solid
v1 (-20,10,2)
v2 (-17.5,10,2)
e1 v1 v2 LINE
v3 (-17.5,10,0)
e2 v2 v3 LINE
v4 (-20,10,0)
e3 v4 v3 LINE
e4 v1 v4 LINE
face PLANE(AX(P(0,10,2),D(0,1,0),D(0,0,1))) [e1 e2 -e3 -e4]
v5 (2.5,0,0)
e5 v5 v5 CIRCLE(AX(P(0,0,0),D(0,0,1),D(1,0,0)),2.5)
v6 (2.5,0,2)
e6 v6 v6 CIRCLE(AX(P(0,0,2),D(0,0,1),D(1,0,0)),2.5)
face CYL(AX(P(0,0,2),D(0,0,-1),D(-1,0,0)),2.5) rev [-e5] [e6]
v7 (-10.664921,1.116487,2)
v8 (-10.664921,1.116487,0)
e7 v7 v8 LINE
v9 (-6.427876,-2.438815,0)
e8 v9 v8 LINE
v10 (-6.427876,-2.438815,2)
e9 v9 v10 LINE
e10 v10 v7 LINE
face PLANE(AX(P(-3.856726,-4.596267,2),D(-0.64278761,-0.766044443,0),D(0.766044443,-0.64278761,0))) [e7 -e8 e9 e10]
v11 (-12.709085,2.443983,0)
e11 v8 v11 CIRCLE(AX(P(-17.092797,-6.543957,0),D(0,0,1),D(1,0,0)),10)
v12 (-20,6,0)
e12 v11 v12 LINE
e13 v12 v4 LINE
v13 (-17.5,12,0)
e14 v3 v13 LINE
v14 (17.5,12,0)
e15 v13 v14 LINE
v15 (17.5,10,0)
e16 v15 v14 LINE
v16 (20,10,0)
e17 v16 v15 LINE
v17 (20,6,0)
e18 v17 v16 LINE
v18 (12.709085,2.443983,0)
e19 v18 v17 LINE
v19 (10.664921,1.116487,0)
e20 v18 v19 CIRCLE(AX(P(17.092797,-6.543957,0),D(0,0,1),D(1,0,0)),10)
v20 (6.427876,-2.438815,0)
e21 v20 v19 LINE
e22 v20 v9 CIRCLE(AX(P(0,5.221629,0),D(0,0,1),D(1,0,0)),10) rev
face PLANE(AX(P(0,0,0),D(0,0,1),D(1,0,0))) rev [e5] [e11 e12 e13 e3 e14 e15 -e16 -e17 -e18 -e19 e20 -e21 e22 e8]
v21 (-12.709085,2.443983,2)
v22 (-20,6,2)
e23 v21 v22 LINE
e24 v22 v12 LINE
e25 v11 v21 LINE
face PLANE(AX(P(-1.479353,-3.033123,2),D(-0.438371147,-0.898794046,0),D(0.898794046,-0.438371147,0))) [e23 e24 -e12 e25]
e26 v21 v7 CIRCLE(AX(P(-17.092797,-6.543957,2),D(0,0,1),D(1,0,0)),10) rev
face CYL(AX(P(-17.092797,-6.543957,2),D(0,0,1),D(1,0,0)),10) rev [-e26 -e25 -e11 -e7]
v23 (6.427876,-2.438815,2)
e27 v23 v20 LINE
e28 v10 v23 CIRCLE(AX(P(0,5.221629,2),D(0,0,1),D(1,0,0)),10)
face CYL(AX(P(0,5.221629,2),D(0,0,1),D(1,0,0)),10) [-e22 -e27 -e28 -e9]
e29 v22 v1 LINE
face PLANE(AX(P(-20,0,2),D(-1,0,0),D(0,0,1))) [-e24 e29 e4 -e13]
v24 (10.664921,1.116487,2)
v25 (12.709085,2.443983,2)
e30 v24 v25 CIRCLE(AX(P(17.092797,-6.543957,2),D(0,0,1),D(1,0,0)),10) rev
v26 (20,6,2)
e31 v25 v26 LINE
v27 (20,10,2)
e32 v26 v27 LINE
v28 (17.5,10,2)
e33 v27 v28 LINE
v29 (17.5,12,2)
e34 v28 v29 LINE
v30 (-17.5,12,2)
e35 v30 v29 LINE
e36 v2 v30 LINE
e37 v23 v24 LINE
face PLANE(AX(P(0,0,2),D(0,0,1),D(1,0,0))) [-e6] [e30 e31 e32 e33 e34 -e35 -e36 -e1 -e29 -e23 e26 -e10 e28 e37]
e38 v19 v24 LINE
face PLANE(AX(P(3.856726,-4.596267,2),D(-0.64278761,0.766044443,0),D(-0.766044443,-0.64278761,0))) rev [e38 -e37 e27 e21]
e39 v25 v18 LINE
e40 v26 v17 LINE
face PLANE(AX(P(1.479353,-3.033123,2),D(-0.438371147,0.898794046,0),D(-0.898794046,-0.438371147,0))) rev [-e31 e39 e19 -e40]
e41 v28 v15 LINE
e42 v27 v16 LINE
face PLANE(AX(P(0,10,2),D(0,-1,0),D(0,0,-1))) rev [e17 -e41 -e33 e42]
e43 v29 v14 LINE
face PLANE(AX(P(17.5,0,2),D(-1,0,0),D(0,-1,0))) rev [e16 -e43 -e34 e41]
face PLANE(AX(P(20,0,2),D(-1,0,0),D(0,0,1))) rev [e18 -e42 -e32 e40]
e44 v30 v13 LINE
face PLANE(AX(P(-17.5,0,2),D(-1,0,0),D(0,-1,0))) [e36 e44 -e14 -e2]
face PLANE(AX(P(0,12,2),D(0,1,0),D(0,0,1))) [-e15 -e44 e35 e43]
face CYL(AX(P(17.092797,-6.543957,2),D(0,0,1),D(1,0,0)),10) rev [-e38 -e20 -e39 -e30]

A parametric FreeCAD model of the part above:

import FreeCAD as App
import Part
import Sketcher

V = App.Vector
Q = App.Units.Quantity


def edges_at(feature, points):
    """Names of the edges that pass closest to the given points."""
    edges = feature.Shape.Edges
    near = lambda p: min(range(len(edges)), key=lambda i: edges[i].distToShape(Part.Vertex(*p))[0])
    return sorted({f"Edge{near(p) + 1}" for p in points})

doc = App.newDocument("Part")
body = doc.addObject("PartDesign::Body", "Body")

# Sketch on XY plane
sketch1 = doc.addObject("Sketcher::SketchObject", "Sketch")
body.addObject(sketch1)
sketch1.AttachmentSupport = (doc.XY_Plane, [""])
sketch1.MapMode = "FlatFace"
sketch1.addGeometry([
    Part.LineSegment(V(0, -7.832444, 0), V(11.605505, 1.905731, 0)),  # 0
    Part.LineSegment(V(11.605505, 1.905731, 0), V(20, 6, 0)),  # 1
    Part.LineSegment(V(20, 6, 0), V(20, 10, 0)),  # 2
    Part.LineSegment(V(20, 10, 0), V(17.5, 10, 0)),  # 3
    Part.LineSegment(V(17.5, 10, 0), V(17.5, 12, 0)),  # 4
    Part.LineSegment(V(17.5, 12, 0), V(-17.5, 12, 0)),  # 5
    Part.LineSegment(V(-17.5, 12, 0), V(-17.5, 10, 0)),  # 6
    Part.LineSegment(V(-17.5, 10, 0), V(-20, 10, 0)),  # 7
    Part.LineSegment(V(-20, 10, 0), V(-20, 6, 0)),  # 8
    Part.LineSegment(V(-20, 6, 0), V(-11.605505, 1.905731, 0)),  # 9
    Part.LineSegment(V(-11.605505, 1.905731, 0), V(0, -7.832444, 0)),  # 10
    Part.Circle(V(0, 0, 0), V(0, 0, 1), 2.5),  # 11
], False)
sketch1.addConstraint([
    Sketcher.Constraint("Coincident", 0, 2, 1, 1),
    Sketcher.Constraint("Coincident", 1, 2, 2, 1),
    Sketcher.Constraint("Coincident", 2, 2, 3, 1),
    Sketcher.Constraint("Coincident", 3, 2, 4, 1),
    Sketcher.Constraint("Coincident", 4, 2, 5, 1),
    Sketcher.Constraint("Coincident", 5, 2, 6, 1),
    Sketcher.Constraint("Coincident", 6, 2, 7, 1),
    Sketcher.Constraint("Coincident", 7, 2, 8, 1),
    Sketcher.Constraint("Coincident", 8, 2, 9, 1),
    Sketcher.Constraint("Coincident", 9, 2, 10, 1),
    Sketcher.Constraint("Coincident", 10, 2, 0, 1),
    Sketcher.Constraint("Vertical", 2),
    Sketcher.Constraint("Horizontal", 3),
    Sketcher.Constraint("Vertical", 4),
    Sketcher.Constraint("Horizontal", 5),
    Sketcher.Constraint("Vertical", 6),
    Sketcher.Constraint("Horizontal", 7),
    Sketcher.Constraint("Vertical", 8),
    Sketcher.Constraint("Coincident", 11, 3, -1, 1),
    Sketcher.Constraint("Symmetric", 3, 2, 6, 2, -2),
    Sketcher.Constraint("Symmetric", 1, 2, 8, 2, -2),
    Sketcher.Constraint("Symmetric", 0, 2, 9, 2, -2),
    Sketcher.Constraint("PointOnObject", 10, 2, -2),
    Sketcher.Constraint("Diameter", 11, Q("5 mm")),
    Sketcher.Constraint("DistanceX", 5, 2, 5, 1, Q("35 mm")),
    Sketcher.Constraint("DistanceY", 2, 1, 2, 2, Q("4 mm")),
    Sketcher.Constraint("DistanceY", 4, 1, 4, 2, Q("2 mm")),
    Sketcher.Constraint("Angle", 0, Q("40 deg")),
    Sketcher.Constraint("Angle", 1, Q("26 deg")),
    Sketcher.Constraint("DistanceX", 3, 2, 3, 1, Q("2.5 mm")),
    Sketcher.Constraint("DistanceY", -1, 1, 1, 2, Q("6 mm")),
    Sketcher.Constraint("Distance", 0, Q("15.149911 mm")),
])
pad1 = doc.addObject("PartDesign::Pad", "Pad")
body.addObject(pad1)
pad1.Profile = sketch1
pad1.Length = 2
doc.recompute()

fillet = doc.addObject("PartDesign::Fillet", "Fillet")
body.addObject(fillet)
fillet.Base = (pad1, edges_at(pad1, [(11.606, 1.906, 1), (0, -7.832, 1), (-11.606, 1.906, 1)]))
fillet.Radius = 10

doc.recompute()
